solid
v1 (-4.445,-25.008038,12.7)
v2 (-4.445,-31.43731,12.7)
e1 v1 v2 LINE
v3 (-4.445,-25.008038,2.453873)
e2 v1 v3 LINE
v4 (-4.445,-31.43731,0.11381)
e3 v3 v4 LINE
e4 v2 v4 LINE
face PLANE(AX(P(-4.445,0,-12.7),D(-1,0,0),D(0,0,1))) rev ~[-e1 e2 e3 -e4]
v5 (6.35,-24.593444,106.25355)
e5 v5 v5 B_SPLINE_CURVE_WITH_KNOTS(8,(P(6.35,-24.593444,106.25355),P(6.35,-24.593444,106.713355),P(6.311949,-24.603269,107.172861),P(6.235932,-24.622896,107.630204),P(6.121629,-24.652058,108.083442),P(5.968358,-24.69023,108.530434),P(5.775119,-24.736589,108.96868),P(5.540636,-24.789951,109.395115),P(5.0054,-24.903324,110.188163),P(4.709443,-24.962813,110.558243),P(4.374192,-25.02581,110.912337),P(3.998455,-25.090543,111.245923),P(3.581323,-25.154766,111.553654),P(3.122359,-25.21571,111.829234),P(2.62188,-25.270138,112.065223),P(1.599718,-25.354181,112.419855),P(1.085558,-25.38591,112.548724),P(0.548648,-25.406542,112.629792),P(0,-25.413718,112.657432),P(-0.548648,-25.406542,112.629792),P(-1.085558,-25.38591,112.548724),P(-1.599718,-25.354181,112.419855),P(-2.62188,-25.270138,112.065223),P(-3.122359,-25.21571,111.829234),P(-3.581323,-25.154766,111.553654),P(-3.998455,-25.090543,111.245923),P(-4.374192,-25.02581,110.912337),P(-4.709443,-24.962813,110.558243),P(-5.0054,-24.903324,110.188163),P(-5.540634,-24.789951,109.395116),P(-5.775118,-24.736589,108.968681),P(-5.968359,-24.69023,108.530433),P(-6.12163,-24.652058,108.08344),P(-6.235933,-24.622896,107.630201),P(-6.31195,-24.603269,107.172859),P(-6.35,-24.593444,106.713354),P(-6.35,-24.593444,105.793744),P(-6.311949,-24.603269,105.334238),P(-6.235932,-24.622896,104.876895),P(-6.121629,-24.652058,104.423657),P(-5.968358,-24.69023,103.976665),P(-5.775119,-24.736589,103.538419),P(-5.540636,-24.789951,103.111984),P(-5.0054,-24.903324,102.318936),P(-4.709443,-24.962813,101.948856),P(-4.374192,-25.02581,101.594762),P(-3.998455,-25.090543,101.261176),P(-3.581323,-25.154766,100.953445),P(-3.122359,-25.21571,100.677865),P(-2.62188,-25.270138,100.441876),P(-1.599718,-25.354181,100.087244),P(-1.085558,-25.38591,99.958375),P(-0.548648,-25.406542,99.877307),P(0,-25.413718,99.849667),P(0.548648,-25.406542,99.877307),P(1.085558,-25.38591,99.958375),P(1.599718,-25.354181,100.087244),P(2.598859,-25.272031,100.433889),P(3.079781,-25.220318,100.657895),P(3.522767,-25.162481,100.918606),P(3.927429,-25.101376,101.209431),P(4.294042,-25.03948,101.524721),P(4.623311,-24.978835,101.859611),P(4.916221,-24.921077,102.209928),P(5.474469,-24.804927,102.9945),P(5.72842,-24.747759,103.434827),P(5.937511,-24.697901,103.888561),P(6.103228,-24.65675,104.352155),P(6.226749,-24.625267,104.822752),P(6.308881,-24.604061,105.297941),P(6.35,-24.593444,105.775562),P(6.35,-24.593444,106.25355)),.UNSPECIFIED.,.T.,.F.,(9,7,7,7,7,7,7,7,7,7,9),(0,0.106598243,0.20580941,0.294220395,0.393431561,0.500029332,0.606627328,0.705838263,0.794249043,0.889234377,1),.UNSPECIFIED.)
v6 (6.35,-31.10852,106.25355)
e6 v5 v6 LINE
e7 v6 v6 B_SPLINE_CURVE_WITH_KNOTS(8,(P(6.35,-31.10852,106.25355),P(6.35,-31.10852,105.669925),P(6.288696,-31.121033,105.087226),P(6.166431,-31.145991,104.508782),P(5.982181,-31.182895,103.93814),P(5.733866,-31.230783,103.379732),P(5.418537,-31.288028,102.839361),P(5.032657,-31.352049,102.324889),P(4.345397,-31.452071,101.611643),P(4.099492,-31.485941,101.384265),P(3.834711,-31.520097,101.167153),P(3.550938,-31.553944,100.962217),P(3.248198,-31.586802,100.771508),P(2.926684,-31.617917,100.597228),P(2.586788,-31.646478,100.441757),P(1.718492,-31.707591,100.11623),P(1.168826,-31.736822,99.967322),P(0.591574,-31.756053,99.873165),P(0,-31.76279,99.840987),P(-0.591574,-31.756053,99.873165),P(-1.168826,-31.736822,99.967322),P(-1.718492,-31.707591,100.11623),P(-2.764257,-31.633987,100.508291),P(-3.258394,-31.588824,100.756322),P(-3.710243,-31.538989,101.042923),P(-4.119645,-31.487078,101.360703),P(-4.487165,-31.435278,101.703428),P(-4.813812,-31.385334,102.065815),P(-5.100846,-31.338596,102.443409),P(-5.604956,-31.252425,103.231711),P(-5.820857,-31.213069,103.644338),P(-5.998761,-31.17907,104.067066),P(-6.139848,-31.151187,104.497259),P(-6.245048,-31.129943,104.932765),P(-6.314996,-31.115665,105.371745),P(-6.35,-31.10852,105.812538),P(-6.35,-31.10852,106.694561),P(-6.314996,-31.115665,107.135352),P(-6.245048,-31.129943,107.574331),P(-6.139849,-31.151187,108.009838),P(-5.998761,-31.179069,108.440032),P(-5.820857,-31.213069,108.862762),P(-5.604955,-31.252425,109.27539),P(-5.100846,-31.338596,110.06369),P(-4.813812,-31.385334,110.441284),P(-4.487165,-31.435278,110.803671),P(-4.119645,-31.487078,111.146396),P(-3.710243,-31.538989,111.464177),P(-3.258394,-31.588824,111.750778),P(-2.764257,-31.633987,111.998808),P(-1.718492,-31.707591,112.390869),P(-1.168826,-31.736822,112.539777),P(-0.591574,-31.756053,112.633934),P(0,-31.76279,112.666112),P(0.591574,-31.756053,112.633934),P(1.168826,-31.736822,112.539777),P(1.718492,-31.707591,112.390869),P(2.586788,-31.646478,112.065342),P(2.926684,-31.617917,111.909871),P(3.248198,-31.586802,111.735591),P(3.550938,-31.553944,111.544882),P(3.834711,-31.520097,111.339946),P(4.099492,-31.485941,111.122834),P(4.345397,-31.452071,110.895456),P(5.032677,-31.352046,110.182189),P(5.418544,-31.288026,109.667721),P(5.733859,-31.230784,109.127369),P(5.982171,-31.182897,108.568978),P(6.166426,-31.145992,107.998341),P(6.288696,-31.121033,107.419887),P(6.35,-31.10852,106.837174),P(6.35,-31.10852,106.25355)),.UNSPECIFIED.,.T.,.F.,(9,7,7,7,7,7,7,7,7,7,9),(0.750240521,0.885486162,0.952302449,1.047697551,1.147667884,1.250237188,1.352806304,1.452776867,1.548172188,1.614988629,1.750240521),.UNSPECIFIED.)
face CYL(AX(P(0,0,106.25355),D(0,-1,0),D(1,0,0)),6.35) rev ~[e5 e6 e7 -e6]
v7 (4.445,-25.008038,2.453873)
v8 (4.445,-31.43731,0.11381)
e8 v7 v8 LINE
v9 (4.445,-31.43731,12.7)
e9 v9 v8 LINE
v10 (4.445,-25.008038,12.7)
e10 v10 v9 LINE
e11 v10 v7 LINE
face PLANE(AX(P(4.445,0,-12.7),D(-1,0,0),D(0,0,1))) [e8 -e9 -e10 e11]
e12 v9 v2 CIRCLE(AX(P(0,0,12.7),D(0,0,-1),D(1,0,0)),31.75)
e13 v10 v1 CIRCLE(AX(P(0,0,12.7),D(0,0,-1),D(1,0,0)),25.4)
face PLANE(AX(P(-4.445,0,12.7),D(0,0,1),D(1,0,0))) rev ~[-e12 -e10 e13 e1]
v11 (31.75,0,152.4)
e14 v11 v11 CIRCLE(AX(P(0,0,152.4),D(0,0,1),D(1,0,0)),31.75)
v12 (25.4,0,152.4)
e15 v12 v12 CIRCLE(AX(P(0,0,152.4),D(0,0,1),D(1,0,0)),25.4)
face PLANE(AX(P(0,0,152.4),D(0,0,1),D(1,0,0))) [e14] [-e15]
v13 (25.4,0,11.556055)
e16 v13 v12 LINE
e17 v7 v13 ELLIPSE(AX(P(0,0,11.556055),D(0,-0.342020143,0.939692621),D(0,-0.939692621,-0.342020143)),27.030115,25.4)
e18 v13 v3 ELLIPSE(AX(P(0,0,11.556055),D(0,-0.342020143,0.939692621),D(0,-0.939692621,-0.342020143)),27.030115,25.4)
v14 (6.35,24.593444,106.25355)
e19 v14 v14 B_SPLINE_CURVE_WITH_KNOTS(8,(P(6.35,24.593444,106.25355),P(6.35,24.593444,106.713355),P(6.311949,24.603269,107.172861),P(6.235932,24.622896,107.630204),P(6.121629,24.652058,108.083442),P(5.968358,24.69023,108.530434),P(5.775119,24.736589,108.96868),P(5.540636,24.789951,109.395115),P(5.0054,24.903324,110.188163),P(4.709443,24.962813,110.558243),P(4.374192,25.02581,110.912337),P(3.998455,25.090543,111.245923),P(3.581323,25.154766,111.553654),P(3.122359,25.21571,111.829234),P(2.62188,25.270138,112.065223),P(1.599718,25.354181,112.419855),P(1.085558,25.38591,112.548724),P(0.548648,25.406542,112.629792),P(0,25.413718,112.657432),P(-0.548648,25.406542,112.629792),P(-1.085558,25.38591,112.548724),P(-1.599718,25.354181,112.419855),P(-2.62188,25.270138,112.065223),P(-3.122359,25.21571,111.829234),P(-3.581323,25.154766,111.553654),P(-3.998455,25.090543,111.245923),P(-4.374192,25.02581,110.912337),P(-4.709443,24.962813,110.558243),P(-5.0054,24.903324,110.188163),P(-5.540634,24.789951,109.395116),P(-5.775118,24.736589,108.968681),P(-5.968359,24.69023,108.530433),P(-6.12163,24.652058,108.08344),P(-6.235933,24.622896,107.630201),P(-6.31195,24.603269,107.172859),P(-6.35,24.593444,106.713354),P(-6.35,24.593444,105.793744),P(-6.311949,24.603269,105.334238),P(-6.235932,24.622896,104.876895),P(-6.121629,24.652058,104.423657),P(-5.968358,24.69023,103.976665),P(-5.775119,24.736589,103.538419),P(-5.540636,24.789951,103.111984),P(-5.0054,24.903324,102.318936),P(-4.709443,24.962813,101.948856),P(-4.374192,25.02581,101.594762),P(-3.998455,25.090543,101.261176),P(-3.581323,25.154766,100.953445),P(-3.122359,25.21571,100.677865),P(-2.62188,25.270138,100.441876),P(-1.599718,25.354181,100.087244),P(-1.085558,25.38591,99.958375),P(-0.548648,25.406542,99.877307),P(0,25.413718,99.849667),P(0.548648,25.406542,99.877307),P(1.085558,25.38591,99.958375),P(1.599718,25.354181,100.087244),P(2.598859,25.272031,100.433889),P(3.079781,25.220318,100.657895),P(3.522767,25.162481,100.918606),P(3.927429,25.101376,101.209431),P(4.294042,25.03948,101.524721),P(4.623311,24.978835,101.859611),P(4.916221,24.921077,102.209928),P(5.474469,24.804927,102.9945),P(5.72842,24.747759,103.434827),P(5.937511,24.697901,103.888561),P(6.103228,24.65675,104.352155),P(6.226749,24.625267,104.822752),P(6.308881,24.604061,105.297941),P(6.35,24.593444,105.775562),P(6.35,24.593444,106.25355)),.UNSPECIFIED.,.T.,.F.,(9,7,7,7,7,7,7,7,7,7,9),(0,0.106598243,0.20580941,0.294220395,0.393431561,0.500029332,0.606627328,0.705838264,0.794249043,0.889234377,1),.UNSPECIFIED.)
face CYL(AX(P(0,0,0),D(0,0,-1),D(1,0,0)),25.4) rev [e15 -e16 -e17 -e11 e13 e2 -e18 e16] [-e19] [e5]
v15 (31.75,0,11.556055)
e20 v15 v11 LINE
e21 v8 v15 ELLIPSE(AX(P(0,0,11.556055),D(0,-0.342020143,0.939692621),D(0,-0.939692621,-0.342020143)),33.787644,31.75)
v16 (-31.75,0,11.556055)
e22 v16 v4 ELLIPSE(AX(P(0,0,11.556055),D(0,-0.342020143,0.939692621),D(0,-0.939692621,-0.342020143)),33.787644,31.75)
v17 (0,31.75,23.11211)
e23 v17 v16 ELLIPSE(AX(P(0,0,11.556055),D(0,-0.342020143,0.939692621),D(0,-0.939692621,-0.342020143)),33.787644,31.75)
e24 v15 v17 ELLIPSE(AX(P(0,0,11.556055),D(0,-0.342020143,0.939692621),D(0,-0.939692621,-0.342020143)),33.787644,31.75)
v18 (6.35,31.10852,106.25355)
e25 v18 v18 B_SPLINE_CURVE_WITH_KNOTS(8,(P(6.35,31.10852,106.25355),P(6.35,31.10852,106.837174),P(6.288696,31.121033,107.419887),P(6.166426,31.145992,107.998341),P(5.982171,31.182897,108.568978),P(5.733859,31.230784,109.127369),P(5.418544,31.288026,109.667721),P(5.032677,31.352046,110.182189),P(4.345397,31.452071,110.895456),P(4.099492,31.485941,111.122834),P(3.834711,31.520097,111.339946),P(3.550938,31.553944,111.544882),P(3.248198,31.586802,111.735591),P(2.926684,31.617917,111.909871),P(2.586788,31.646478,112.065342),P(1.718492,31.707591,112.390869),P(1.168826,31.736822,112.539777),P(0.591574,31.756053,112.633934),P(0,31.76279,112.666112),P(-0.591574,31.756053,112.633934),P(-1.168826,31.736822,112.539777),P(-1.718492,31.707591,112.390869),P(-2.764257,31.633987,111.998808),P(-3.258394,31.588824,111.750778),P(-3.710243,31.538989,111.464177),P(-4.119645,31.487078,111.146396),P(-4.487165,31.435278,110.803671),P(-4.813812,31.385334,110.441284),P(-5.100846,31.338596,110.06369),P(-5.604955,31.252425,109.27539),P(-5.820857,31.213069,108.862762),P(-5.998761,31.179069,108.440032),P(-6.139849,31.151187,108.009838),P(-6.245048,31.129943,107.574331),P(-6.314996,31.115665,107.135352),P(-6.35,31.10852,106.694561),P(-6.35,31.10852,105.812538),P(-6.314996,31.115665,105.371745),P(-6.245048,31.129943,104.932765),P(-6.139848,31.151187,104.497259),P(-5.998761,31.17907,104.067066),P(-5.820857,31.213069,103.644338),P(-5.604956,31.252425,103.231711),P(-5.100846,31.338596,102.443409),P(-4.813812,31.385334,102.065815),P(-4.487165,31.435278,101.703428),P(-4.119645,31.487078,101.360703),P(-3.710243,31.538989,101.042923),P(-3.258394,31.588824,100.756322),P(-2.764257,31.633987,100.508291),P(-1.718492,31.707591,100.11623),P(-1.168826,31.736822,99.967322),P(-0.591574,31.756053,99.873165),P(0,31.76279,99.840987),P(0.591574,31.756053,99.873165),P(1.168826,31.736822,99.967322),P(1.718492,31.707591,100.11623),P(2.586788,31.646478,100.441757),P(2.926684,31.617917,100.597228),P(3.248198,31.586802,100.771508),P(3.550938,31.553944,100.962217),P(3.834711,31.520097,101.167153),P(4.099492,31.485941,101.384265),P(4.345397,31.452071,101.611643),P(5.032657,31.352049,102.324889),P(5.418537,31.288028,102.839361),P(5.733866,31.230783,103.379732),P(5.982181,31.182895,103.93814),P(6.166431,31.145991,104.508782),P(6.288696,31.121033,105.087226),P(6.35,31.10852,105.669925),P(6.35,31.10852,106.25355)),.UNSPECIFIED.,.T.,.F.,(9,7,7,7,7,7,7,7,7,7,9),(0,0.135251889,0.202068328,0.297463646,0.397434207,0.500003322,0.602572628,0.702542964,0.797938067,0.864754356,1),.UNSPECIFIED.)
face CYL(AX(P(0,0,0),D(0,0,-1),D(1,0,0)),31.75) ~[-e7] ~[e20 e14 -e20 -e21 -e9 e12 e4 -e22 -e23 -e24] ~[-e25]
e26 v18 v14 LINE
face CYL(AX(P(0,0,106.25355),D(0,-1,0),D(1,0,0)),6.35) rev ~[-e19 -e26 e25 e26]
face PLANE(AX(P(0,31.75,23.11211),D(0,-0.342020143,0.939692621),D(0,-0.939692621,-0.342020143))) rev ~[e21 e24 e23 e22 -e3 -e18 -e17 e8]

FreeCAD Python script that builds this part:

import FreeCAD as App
import Part
import Sketcher
Q = App.Units.Quantity


def add_polygon(sketch, points):
    """Adds a closed chain of lines whose ends are joined by coincident constraints."""
    first, n = sketch.GeometryCount, len(points)
    for a, b in zip(points, points[1:] + points[:1]):
        sketch.addGeometry(Part.LineSegment(App.Vector(*a, 0), App.Vector(*b, 0)), False)
    for i in range(n):
        sketch.addConstraint(Sketcher.Constraint("Coincident", first + i, 2, first + (i + 1) % n, 1))

doc = App.newDocument("Part")
body = doc.addObject("PartDesign::Body", "Body")

# Sketch on XY plane
sketch1 = body.newObject("Sketcher::SketchObject", "Sketch")
sketch1.AttachmentSupport = (doc.getObject("XY_Plane"), [""])
sketch1.MapMode = "FlatFace"
sketch1.addGeometry(Part.Circle(App.Vector(0, 0, 0), App.Vector(0, 0, 1), 32), False)
sketch1.addGeometry(Part.Circle(App.Vector(0, 0, 0), App.Vector(0, 0, 1), 25), False)
sketch1.addConstraint(Sketcher.Constraint("Coincident", 0, 3, -1, 1))
sketch1.addConstraint(Sketcher.Constraint("Coincident", 1, 3, -1, 1))
sketch1.addConstraint(Sketcher.Constraint("Diameter", 1, Q("2 in")))
sketch1.addConstraint(Sketcher.Constraint("Diameter", 0, Q("2.5 in")))
pad1 = body.newObject("PartDesign::Pad", "Pad")
pad1.Profile = sketch1
pad1.Length = Q("6 in")

# Sketch on YZ plane
sketch2 = body.newObject("Sketcher::SketchObject", "Sketch001")
sketch2.AttachmentSupport = (doc.getObject("YZ_Plane"), [""])
sketch2.MapMode = "FlatFace"
add_polygon(sketch2, [(-32, 0), (32, 0), (32, 23)])  # lines 0-2
sketch2.addConstraint(Sketcher.Constraint("Horizontal", 0))
sketch2.addConstraint(Sketcher.Constraint("Vertical", 1))
sketch2.addConstraint(Sketcher.Constraint("Symmetric", 0, 2, 2, 2, -1, 1))
sketch2.addConstraint(Sketcher.Constraint("DistanceX", 0, 1, 0, 2, Q("2.5 in")))
sketch2.addConstraint(Sketcher.Constraint("Angle", 2, Q("-160 deg")))
pocket1 = body.newObject("PartDesign::Pocket", "Pocket")
pocket1.Profile = sketch2
pocket1.Length = Q("2.5 in")
pocket1.Midplane = True

# Sketch on XZ plane
sketch3 = body.newObject("Sketcher::SketchObject", "Sketch002")
sketch3.AttachmentSupport = (doc.getObject("XZ_Plane"), [""])
sketch3.MapMode = "FlatFace"
sketch3.addGeometry(Part.Circle(App.Vector(0, 106, 0), App.Vector(0, 0, 1), 6), False)
sketch3.addConstraint(Sketcher.Constraint("PointOnObject", 0, 3, -2))
sketch3.addConstraint(Sketcher.Constraint("Diameter", 0, Q("0.5 in")))
sketch3.addConstraint(Sketcher.Constraint("DistanceY", -1, 1, 0, 3, Q("106.25355 mm")))
pocket2 = body.newObject("PartDesign::Pocket", "Pocket001")
pocket2.Profile = sketch3
pocket2.Length = Q("2.5 in")
pocket2.Midplane = True

# Sketch on XZ plane
sketch4 = body.newObject("Sketcher::SketchObject", "Sketch003")
sketch4.AttachmentSupport = (doc.getObject("XZ_Plane"), [""])
sketch4.MapMode = "FlatFace"
add_polygon(sketch4, [(-4, 13), (-4, -13), (4, -13), (4, 13)])  # lines 0-3
sketch4.addConstraint(Sketcher.Constraint("Vertical", 0))
sketch4.addConstraint(Sketcher.Constraint("Horizontal", 1))
sketch4.addConstraint(Sketcher.Constraint("Vertical", 2))
sketch4.addConstraint(Sketcher.Constraint("Horizontal", 3))
sketch4.addConstraint(Sketcher.Constraint("Symmetric", 0, 2, 2, 2, -1, 1))
sketch4.addConstraint(Sketcher.Constraint("DistanceY", 0, 2, 0, 1, Q("1 in")))
sketch4.addConstraint(Sketcher.Constraint("DistanceX", 1, 1, 1, 2, Q("0.35 in")))
pocket3 = body.newObject("PartDesign::Pocket", "Pocket002")
pocket3.Profile = sketch4
pocket3.Length = Q("1.5 in")
pocket3.Reversed = True

doc.recompute()
